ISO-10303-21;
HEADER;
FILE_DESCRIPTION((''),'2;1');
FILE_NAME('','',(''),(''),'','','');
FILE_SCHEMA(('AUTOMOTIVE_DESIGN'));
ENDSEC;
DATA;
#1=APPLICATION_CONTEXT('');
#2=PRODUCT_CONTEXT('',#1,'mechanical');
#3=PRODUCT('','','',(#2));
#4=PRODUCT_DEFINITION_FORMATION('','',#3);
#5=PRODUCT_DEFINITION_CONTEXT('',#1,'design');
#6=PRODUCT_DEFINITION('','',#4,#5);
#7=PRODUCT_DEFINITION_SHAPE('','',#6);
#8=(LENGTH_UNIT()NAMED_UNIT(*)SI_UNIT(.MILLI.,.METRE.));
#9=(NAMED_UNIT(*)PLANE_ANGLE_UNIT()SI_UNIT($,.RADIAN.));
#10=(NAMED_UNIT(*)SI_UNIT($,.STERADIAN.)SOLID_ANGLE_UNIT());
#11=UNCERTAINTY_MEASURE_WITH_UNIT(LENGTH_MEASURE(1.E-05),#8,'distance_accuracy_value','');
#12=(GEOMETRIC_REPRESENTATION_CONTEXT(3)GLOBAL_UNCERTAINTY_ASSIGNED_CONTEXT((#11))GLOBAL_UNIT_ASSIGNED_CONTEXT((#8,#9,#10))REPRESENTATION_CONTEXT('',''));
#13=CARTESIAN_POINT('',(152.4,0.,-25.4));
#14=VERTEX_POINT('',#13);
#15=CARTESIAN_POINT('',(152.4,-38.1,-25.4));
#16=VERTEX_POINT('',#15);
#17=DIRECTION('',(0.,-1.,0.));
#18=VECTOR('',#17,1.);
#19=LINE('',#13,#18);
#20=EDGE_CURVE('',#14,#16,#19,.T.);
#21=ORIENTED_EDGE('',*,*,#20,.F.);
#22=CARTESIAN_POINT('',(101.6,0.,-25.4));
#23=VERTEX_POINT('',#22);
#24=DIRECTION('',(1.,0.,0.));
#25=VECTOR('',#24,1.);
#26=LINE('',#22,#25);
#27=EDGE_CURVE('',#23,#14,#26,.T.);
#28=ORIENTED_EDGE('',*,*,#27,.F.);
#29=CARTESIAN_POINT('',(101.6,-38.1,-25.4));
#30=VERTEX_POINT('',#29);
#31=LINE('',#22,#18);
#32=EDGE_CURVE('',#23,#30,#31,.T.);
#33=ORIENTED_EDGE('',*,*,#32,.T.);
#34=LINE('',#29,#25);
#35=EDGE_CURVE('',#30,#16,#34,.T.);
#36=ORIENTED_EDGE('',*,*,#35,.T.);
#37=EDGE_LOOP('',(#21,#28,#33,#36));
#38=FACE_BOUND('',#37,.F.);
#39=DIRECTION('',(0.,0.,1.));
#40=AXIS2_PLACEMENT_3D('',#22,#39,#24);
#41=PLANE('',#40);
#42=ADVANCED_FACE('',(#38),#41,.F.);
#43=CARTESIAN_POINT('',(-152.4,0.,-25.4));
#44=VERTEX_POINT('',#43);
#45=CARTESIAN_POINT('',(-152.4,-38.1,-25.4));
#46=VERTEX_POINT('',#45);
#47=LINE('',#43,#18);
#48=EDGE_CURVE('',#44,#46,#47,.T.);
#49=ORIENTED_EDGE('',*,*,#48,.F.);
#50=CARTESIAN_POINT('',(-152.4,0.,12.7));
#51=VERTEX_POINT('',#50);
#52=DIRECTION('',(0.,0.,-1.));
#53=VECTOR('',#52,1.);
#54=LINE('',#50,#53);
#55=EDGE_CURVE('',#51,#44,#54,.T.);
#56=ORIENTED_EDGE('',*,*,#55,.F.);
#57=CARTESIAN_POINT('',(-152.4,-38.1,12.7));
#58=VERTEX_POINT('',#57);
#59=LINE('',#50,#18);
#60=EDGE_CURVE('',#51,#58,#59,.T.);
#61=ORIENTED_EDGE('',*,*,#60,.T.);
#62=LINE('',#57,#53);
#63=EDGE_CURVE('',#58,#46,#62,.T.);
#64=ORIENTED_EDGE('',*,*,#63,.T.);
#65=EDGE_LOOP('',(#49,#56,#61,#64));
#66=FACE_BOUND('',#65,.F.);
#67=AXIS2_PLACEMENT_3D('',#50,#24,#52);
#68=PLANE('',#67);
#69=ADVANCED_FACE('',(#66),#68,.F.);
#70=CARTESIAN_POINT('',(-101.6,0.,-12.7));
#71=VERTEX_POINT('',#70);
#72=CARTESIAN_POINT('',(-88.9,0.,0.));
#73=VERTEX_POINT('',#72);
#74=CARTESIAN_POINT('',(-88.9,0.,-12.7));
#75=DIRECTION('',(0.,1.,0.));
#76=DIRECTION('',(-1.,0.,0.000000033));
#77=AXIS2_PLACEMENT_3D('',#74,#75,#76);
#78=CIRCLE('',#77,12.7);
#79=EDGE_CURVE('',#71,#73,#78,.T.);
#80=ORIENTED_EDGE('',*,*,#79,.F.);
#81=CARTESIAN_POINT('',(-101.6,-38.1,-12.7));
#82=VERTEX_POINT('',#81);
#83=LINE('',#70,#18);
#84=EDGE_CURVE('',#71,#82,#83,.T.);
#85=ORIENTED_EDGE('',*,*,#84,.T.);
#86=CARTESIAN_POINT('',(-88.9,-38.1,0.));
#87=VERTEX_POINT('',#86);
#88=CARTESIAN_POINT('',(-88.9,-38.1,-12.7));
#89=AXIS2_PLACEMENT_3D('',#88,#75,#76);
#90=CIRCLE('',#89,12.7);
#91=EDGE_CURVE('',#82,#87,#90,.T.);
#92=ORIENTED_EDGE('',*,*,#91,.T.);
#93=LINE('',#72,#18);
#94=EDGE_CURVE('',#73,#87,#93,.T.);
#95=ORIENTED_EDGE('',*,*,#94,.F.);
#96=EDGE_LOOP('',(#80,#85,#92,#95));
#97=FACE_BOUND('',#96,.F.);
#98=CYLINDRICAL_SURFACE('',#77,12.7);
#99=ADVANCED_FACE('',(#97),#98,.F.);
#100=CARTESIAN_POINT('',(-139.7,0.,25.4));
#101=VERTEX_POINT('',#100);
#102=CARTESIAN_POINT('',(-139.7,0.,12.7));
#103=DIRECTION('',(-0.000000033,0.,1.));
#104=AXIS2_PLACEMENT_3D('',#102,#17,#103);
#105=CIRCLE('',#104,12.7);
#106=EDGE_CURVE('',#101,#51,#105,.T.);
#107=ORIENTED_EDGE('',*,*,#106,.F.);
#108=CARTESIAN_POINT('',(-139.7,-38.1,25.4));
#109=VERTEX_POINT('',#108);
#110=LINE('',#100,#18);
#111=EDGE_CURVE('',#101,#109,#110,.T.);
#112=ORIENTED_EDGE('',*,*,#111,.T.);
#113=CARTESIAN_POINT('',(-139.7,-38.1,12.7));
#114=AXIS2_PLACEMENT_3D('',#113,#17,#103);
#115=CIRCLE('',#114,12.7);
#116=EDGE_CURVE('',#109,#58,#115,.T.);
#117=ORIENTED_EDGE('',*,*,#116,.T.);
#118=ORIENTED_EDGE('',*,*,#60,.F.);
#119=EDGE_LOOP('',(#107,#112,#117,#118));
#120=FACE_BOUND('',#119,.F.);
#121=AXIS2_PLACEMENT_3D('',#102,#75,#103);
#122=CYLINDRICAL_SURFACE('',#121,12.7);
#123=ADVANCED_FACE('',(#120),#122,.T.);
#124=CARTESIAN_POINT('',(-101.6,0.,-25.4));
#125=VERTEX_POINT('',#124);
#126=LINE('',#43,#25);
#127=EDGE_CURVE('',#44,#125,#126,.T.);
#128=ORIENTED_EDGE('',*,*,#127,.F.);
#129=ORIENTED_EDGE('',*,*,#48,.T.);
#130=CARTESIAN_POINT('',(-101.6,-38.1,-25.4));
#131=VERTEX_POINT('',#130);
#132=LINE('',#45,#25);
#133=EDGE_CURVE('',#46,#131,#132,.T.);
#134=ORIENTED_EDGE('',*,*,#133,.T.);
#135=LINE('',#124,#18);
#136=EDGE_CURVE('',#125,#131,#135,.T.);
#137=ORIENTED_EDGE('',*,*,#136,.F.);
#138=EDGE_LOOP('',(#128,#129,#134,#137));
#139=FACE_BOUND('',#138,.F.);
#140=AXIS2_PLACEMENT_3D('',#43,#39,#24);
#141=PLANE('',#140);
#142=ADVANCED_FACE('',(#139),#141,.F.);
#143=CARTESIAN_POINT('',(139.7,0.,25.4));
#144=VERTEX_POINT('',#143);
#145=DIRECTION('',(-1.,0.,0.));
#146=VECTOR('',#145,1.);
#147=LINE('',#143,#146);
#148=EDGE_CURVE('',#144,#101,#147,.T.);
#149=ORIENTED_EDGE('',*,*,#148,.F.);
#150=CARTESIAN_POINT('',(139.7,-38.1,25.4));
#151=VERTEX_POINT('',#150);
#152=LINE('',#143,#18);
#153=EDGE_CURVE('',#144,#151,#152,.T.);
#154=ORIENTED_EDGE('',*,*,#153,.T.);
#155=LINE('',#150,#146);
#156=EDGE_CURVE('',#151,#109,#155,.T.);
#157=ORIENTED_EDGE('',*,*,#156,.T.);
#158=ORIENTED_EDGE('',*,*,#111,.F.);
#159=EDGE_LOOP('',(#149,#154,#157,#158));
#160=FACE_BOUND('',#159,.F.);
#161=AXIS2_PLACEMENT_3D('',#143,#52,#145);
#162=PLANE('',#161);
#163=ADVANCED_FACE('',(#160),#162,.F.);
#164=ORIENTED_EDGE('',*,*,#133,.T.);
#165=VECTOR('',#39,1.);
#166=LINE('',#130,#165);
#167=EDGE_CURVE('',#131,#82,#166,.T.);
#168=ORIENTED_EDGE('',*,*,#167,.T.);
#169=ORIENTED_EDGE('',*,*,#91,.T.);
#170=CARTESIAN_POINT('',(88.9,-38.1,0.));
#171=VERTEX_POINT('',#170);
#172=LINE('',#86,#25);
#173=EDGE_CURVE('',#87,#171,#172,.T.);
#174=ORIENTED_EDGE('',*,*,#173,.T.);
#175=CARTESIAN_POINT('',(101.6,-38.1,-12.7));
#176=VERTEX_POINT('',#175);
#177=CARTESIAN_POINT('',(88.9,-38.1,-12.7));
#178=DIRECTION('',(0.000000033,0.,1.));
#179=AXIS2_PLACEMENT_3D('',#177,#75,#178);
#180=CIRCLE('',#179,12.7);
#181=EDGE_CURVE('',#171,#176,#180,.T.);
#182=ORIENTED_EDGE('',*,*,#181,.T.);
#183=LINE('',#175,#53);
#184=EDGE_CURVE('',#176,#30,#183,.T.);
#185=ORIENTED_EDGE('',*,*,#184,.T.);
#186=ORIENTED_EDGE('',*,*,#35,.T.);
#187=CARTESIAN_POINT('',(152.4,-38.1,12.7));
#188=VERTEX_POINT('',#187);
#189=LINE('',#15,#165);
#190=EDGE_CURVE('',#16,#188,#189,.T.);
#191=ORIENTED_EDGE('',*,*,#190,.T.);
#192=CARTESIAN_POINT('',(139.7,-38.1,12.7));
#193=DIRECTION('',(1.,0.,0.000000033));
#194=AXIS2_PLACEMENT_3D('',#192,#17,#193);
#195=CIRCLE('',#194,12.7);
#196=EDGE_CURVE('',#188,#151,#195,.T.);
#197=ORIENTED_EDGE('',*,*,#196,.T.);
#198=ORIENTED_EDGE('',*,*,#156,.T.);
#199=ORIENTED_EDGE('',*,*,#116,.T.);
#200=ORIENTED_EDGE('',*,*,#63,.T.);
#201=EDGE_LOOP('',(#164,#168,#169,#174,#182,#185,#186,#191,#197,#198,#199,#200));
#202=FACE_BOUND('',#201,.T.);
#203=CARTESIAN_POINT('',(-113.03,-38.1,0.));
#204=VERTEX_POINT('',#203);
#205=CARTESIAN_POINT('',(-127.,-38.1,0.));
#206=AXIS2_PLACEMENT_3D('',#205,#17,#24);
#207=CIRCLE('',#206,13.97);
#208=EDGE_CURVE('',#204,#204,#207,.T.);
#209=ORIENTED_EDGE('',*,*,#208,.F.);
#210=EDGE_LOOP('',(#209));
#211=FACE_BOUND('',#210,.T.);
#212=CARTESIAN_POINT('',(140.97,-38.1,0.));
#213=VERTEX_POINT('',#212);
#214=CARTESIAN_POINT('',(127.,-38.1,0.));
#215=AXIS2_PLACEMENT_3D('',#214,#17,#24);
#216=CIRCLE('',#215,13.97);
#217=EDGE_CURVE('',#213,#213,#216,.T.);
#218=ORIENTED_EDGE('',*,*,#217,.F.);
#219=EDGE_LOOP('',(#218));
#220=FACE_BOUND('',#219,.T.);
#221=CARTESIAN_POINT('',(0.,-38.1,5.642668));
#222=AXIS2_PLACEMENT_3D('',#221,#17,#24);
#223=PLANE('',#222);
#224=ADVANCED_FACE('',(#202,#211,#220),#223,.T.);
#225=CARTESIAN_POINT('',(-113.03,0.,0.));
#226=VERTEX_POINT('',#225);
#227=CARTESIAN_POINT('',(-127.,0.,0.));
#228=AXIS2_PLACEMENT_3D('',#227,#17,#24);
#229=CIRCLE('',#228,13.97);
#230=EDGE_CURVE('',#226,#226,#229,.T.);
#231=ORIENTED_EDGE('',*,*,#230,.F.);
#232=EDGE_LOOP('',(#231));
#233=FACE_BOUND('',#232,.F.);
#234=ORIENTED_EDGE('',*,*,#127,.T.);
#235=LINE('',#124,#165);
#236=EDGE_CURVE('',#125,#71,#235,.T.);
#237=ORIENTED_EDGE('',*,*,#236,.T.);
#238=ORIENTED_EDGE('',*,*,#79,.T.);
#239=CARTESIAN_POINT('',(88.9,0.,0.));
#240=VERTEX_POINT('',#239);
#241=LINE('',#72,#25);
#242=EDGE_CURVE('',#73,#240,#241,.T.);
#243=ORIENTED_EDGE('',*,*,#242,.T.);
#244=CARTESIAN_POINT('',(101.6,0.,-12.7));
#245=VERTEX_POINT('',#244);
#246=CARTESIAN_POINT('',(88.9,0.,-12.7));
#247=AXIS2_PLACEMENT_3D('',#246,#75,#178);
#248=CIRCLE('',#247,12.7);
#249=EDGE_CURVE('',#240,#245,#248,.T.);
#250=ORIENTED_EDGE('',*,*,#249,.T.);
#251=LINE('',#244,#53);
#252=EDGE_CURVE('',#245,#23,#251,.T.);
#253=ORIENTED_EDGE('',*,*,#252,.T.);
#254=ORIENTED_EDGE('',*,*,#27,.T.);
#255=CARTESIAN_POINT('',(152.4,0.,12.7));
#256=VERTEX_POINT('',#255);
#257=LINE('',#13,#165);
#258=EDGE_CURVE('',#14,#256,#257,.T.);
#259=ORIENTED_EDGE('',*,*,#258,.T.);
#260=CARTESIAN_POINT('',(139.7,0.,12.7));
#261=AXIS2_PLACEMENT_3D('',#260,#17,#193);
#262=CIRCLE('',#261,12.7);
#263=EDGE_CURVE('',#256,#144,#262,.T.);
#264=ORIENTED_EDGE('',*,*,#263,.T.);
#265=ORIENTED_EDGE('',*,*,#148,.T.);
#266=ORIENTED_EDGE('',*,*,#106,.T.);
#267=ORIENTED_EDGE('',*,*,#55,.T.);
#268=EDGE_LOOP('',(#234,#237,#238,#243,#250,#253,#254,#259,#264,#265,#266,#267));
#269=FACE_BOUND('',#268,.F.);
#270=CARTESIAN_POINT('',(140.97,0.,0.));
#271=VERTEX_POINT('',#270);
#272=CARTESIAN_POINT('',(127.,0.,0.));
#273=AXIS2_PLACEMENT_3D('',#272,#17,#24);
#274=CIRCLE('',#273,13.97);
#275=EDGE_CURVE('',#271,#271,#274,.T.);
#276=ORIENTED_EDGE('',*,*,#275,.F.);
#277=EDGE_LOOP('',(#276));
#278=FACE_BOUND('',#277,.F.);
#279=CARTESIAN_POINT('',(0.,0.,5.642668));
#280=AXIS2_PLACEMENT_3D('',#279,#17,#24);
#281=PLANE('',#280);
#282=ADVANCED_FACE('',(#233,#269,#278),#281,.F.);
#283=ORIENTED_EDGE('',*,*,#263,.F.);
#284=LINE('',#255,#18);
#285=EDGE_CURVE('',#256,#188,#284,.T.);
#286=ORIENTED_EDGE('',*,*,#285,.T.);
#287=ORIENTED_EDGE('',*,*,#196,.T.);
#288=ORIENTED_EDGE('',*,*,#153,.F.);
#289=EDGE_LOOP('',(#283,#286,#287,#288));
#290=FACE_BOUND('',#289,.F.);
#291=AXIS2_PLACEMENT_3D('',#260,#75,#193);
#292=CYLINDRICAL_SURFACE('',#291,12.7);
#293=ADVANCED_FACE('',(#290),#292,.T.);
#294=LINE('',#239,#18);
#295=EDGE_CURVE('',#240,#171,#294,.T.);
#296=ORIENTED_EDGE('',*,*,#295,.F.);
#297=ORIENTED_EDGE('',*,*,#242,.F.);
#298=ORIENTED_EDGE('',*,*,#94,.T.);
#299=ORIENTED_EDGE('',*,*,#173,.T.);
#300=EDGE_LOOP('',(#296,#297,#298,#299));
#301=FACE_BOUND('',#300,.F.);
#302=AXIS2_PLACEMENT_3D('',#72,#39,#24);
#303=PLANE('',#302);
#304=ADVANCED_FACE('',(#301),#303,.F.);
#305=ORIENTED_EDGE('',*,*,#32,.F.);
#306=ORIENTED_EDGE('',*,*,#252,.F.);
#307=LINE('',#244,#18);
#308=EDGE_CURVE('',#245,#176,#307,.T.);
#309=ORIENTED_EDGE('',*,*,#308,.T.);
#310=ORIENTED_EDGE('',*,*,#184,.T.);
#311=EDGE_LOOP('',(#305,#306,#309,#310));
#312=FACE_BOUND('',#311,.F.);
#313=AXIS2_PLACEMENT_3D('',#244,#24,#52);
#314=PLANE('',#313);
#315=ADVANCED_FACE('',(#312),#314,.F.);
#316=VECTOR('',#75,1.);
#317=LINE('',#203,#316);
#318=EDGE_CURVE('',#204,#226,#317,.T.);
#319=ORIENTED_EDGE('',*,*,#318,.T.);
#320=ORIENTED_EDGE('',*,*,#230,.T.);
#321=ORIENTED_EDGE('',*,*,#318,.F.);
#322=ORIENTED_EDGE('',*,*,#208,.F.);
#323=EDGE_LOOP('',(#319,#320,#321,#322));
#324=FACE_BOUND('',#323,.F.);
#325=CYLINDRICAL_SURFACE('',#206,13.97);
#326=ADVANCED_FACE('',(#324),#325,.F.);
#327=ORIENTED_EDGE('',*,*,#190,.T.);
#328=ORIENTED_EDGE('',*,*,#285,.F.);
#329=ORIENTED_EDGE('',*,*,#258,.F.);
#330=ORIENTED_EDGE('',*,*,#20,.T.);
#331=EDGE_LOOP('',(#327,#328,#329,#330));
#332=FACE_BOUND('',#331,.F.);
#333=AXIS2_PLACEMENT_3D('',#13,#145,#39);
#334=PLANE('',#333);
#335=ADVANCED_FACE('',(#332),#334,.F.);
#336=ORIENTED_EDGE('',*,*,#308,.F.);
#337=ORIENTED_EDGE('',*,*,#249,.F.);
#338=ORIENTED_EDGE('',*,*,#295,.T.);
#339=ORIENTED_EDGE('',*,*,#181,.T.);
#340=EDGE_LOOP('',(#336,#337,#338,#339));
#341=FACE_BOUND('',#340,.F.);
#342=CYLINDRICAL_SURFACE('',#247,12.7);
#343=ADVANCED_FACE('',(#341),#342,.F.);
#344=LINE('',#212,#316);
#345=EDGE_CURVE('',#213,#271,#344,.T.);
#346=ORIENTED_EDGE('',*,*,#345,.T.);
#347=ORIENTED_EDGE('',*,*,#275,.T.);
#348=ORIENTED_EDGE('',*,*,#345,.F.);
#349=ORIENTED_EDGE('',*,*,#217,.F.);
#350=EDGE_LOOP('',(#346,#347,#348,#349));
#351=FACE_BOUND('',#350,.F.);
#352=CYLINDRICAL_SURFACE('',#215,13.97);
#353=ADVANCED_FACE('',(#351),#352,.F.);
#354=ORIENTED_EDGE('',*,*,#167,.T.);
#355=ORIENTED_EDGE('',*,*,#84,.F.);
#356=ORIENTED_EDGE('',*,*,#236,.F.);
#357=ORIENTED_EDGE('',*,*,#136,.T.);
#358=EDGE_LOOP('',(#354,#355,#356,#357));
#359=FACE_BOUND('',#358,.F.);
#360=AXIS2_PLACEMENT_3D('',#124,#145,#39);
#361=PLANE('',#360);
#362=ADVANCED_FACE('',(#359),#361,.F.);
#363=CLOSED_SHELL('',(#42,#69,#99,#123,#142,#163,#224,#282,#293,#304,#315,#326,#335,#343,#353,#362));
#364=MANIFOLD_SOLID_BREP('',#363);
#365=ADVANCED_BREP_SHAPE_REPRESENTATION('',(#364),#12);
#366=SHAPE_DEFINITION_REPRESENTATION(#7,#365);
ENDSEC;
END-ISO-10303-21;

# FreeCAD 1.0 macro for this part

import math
import FreeCAD as App
import Part
import Sketcher
Q = App.Units.Quantity

doc = App.newDocument("Part")
params = doc.addObject("Spreadsheet::Sheet", "Params")
for row, (alias, value) in enumerate([
    ("sketch1_radius", "0.5 in"),
    ("sketch1_width", "11 in"),
    ("sketch1_width2", "2 in"),
    ("sketch1_height", "1.5 in"),
    ("sketch1_height2", "0.5 in"),
    ("pad1_length", "1.5 in"),
    ("sketch2_diameter", "1.1 in"),
], start=1):
    params.set(f"A{row}", alias)
    params.set(f"B{row}", "=" + value)
    params.setAlias(f"B{row}", alias)

body = doc.addObject("PartDesign::Body", "Body")

sketch1 = body.newObject("Sketcher::SketchObject", "Sketch")
sketch1.AttachmentSupport = (doc.getObject("XZ_Plane"), [""])
sketch1.MapMode = "FlatFace"
sketch1.addGeometry(Part.LineSegment(App.Vector(140, 25, 0), App.Vector(-140, 25, 0)), False)
sketch1.addGeometry(Part.ArcOfCircle(Part.Circle(App.Vector(-140, 13, 0), App.Vector(0, 0, 1), 13), math.radians(90), math.radians(180)), False)
sketch1.addGeometry(Part.LineSegment(App.Vector(-152, 13, 0), App.Vector(-152, -25, 0)), False)
sketch1.addGeometry(Part.LineSegment(App.Vector(-152, -25, 0), App.Vector(-102, -25, 0)), False)
sketch1.addGeometry(Part.LineSegment(App.Vector(-102, -25, 0), App.Vector(-102, -13, 0)), False)
sketch1.addGeometry(Part.ArcOfCircle(Part.Circle(App.Vector(-89, -13, 0), App.Vector(0, 0, 1), 13), math.radians(90), math.radians(180)), False)
sketch1.addGeometry(Part.LineSegment(App.Vector(-89, 0, 0), App.Vector(89, 0, 0)), False)
sketch1.addGeometry(Part.ArcOfCircle(Part.Circle(App.Vector(89, -13, 0), App.Vector(0, 0, 1), 13), math.radians(0), math.radians(90)), False)
sketch1.addGeometry(Part.LineSegment(App.Vector(102, -13, 0), App.Vector(102, -25, 0)), False)
sketch1.addGeometry(Part.LineSegment(App.Vector(102, -25, 0), App.Vector(152, -25, 0)), False)
sketch1.addGeometry(Part.LineSegment(App.Vector(152, -25, 0), App.Vector(152, 13, 0)), False)
sketch1.addGeometry(Part.ArcOfCircle(Part.Circle(App.Vector(140, 13, 0), App.Vector(0, 0, 1), 13), math.radians(0), math.radians(90)), False)
sketch1.addConstraint(Sketcher.Constraint("Tangent", 0, 2, 1, 1))
sketch1.addConstraint(Sketcher.Constraint("Tangent", 1, 2, 2, 1))
sketch1.addConstraint(Sketcher.Constraint("Coincident", 2, 2, 3, 1))
sketch1.addConstraint(Sketcher.Constraint("Coincident", 3, 2, 4, 1))
sketch1.addConstraint(Sketcher.Constraint("Tangent", 4, 2, 5, 2))
sketch1.addConstraint(Sketcher.Constraint("Tangent", 5, 1, 6, 1))
sketch1.addConstraint(Sketcher.Constraint("Tangent", 6, 2, 7, 2))
sketch1.addConstraint(Sketcher.Constraint("Tangent", 7, 1, 8, 1))
sketch1.addConstraint(Sketcher.Constraint("Coincident", 8, 2, 9, 1))
sketch1.addConstraint(Sketcher.Constraint("Coincident", 9, 2, 10, 1))
sketch1.addConstraint(Sketcher.Constraint("Tangent", 10, 2, 11, 1))
sketch1.addConstraint(Sketcher.Constraint("Tangent", 11, 2, 0, 1))
sketch1.addConstraint(Sketcher.Constraint("Horizontal", 0))
sketch1.addConstraint(Sketcher.Constraint("Vertical", 2))
sketch1.addConstraint(Sketcher.Constraint("Horizontal", 3))
sketch1.addConstraint(Sketcher.Constraint("Vertical", 4))
sketch1.addConstraint(Sketcher.Constraint("Horizontal", 6))
sketch1.addConstraint(Sketcher.Constraint("Vertical", 8))
sketch1.addConstraint(Sketcher.Constraint("Horizontal", 9))
sketch1.addConstraint(Sketcher.Constraint("Vertical", 10))
sketch1.addConstraint(Sketcher.Constraint("Equal", 1, 5))
sketch1.addConstraint(Sketcher.Constraint("Equal", 5, 7))
sketch1.addConstraint(Sketcher.Constraint("Equal", 7, 11))
sketch1.addConstraint(Sketcher.Constraint("Symmetric", 5, 1, 6, 2, -1, 1))
sketch1.addConstraint(Sketcher.Constraint("Symmetric", 2, 2, 9, 2, -2))
sketch1.addConstraint(Sketcher.Constraint("Radius", 1, Q("0.5 in")))
sketch1.addConstraint(Sketcher.Constraint("DistanceX", 0, 2, 0, 1, Q("11 in")))
sketch1.addConstraint(Sketcher.Constraint("DistanceX", 3, 1, 3, 2, Q("2 in")))
sketch1.addConstraint(Sketcher.Constraint("DistanceY", 2, 2, 2, 1, Q("1.5 in")))
sketch1.addConstraint(Sketcher.Constraint("DistanceY", 4, 1, 4, 2, Q("0.5 in")))
sketch1.setExpression("Constraints[25]", "Params.sketch1_radius")
sketch1.setExpression("Constraints[26]", "Params.sketch1_width")
sketch1.setExpression("Constraints[27]", "Params.sketch1_width2")
sketch1.setExpression("Constraints[28]", "Params.sketch1_height")
sketch1.setExpression("Constraints[29]", "Params.sketch1_height2")
pad1 = body.newObject("PartDesign::Pad", "Pad")
pad1.Profile = sketch1
pad1.setExpression("Length", "Params.pad1_length")

sketch2 = body.newObject("Sketcher::SketchObject", "Sketch001")
sketch2.AttachmentSupport = (doc.getObject("XZ_Plane"), [""])
sketch2.MapMode = "FlatFace"
sketch2.AttachmentOffset = App.Placement(App.Vector(0, 0, 1.5 * 25.4), App.Rotation())
sketch2.addGeometry(Part.Circle(App.Vector(-127, 0, 0), App.Vector(0, 0, 1), 14), False)
sketch2.addGeometry(Part.Circle(App.Vector(127, 0, 0), App.Vector(0, 0, 1), 14), False)
sketch2.addConstraint(Sketcher.Constraint("Equal", 0, 1))
sketch2.addConstraint(Sketcher.Constraint("Symmetric", 0, 3, 1, 3, -1, 1))
sketch2.addConstraint(Sketcher.Constraint("PointOnObject", 0, 3, -1))
sketch2.addConstraint(Sketcher.Constraint("Diameter", 0, Q("1.1 in")))
sketch2.addConstraint(Sketcher.Constraint("DistanceX", 0, 3, -1, 1, Q("5 in")))
sketch2.setExpression("Constraints[3]", "Params.sketch2_diameter")
pocket1 = body.newObject("PartDesign::Pocket", "Pocket")
pocket1.Profile = sketch2
pocket1.Type = "ThroughAll"

doc.recompute()
